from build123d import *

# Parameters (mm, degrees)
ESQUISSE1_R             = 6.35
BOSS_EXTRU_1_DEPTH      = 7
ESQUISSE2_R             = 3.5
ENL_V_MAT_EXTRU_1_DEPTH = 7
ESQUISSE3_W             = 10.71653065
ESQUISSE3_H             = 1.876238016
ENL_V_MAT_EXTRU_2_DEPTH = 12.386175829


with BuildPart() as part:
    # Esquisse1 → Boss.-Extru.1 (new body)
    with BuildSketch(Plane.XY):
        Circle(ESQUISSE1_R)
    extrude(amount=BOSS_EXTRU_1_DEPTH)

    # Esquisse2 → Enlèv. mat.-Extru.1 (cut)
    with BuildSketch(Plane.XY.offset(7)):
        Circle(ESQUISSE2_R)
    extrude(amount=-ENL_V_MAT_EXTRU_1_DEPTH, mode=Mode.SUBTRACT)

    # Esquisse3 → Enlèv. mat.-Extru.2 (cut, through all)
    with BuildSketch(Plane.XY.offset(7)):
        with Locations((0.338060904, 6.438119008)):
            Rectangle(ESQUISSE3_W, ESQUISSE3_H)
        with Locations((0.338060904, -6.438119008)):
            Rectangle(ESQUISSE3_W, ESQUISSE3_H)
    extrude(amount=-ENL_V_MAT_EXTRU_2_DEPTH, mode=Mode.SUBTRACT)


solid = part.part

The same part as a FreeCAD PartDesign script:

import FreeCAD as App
import Part
import Sketcher
Q = App.Units.Quantity


def add_polygon(sketch, points):
    """Adds a closed chain of lines whose ends are joined by coincident constraints."""
    first, n = sketch.GeometryCount, len(points)
    for a, b in zip(points, points[1:] + points[:1]):
        sketch.addGeometry(Part.LineSegment(App.Vector(*a, 0), App.Vector(*b, 0)), False)
    for i in range(n):
        sketch.addConstraint(Sketcher.Constraint("Coincident", first + i, 2, first + (i + 1) % n, 1))

doc = App.newDocument("Part")
body = doc.addObject("PartDesign::Body", "Body")

sketch1 = body.newObject("Sketcher::SketchObject", "Sketch")
sketch1.AttachmentSupport = (doc.getObject("XY_Plane"), [""])
sketch1.MapMode = "FlatFace"
sketch1.addGeometry(Part.Circle(App.Vector(0, 0, 0), App.Vector(0, 0, 1), 6.35), False)
sketch1.addConstraint([
    Sketcher.Constraint("Coincident", 0, 3, -1, 1),
    Sketcher.Constraint("Diameter", 0, Q("12.7 mm")),
])
pad1 = body.newObject("PartDesign::Pad", "Pad")
pad1.Profile = sketch1
pad1.Length = 7

sketch2 = body.newObject("Sketcher::SketchObject", "Sketch001")
sketch2.AttachmentSupport = (doc.getObject("XY_Plane"), [""])
sketch2.MapMode = "FlatFace"
sketch2.AttachmentOffset = App.Placement(App.Vector(0, 0, 7), App.Rotation())
sketch2.addGeometry(Part.Circle(App.Vector(0, 0, 0), App.Vector(0, 0, 1), 3.5), False)
sketch2.addConstraint([
    Sketcher.Constraint("Coincident", 0, 3, -1, 1),
    Sketcher.Constraint("Diameter", 0, Q("7 mm")),
])
pocket1 = body.newObject("PartDesign::Pocket", "Pocket")
pocket1.Profile = sketch2
pocket1.Length = 7

sketch3 = body.newObject("Sketcher::SketchObject", "Sketch002")
sketch3.AttachmentSupport = (doc.getObject("XY_Plane"), [""])
sketch3.MapMode = "FlatFace"
sketch3.AttachmentOffset = App.Placement(App.Vector(0, 0, 7), App.Rotation())
add_polygon(sketch3, [(-5.020204, 7.376238), (-5.020204, 5.5), (5.696326, 5.5), (5.696326, 7.376238)])
add_polygon(sketch3, [(-5.020204, -5.5), (-5.020204, -7.376238), (5.696326, -7.376238), (5.696326, -5.5)])
sketch3.addConstraint([
    Sketcher.Constraint("Vertical", 0),
    Sketcher.Constraint("Horizontal", 1),
    Sketcher.Constraint("Vertical", 2),
    Sketcher.Constraint("Horizontal", 3),
    Sketcher.Constraint("Vertical", 4),
    Sketcher.Constraint("Horizontal", 5),
    Sketcher.Constraint("Vertical", 6),
    Sketcher.Constraint("Horizontal", 7),
    Sketcher.Constraint("Symmetric", 3, 2, 4, 2, -1),
    Sketcher.Constraint("Symmetric", 1, 2, 6, 2, -1),
    Sketcher.Constraint("DistanceY", 6, 2, 1, 2, Q("11 mm")),
    Sketcher.Constraint("DistanceX", 1, 1, 1, 2, Q("10.716531 mm")),
    Sketcher.Constraint("DistanceY", 0, 2, 0, 1, Q("1.876238 mm")),
    Sketcher.Constraint("DistanceX", 0, 2, -1, 1, Q("5.020204 mm")),
])
pocket2 = body.newObject("PartDesign::Pocket", "Pocket001")
pocket2.Profile = sketch3
pocket2.Type = "ThroughAll"

doc.recompute()
